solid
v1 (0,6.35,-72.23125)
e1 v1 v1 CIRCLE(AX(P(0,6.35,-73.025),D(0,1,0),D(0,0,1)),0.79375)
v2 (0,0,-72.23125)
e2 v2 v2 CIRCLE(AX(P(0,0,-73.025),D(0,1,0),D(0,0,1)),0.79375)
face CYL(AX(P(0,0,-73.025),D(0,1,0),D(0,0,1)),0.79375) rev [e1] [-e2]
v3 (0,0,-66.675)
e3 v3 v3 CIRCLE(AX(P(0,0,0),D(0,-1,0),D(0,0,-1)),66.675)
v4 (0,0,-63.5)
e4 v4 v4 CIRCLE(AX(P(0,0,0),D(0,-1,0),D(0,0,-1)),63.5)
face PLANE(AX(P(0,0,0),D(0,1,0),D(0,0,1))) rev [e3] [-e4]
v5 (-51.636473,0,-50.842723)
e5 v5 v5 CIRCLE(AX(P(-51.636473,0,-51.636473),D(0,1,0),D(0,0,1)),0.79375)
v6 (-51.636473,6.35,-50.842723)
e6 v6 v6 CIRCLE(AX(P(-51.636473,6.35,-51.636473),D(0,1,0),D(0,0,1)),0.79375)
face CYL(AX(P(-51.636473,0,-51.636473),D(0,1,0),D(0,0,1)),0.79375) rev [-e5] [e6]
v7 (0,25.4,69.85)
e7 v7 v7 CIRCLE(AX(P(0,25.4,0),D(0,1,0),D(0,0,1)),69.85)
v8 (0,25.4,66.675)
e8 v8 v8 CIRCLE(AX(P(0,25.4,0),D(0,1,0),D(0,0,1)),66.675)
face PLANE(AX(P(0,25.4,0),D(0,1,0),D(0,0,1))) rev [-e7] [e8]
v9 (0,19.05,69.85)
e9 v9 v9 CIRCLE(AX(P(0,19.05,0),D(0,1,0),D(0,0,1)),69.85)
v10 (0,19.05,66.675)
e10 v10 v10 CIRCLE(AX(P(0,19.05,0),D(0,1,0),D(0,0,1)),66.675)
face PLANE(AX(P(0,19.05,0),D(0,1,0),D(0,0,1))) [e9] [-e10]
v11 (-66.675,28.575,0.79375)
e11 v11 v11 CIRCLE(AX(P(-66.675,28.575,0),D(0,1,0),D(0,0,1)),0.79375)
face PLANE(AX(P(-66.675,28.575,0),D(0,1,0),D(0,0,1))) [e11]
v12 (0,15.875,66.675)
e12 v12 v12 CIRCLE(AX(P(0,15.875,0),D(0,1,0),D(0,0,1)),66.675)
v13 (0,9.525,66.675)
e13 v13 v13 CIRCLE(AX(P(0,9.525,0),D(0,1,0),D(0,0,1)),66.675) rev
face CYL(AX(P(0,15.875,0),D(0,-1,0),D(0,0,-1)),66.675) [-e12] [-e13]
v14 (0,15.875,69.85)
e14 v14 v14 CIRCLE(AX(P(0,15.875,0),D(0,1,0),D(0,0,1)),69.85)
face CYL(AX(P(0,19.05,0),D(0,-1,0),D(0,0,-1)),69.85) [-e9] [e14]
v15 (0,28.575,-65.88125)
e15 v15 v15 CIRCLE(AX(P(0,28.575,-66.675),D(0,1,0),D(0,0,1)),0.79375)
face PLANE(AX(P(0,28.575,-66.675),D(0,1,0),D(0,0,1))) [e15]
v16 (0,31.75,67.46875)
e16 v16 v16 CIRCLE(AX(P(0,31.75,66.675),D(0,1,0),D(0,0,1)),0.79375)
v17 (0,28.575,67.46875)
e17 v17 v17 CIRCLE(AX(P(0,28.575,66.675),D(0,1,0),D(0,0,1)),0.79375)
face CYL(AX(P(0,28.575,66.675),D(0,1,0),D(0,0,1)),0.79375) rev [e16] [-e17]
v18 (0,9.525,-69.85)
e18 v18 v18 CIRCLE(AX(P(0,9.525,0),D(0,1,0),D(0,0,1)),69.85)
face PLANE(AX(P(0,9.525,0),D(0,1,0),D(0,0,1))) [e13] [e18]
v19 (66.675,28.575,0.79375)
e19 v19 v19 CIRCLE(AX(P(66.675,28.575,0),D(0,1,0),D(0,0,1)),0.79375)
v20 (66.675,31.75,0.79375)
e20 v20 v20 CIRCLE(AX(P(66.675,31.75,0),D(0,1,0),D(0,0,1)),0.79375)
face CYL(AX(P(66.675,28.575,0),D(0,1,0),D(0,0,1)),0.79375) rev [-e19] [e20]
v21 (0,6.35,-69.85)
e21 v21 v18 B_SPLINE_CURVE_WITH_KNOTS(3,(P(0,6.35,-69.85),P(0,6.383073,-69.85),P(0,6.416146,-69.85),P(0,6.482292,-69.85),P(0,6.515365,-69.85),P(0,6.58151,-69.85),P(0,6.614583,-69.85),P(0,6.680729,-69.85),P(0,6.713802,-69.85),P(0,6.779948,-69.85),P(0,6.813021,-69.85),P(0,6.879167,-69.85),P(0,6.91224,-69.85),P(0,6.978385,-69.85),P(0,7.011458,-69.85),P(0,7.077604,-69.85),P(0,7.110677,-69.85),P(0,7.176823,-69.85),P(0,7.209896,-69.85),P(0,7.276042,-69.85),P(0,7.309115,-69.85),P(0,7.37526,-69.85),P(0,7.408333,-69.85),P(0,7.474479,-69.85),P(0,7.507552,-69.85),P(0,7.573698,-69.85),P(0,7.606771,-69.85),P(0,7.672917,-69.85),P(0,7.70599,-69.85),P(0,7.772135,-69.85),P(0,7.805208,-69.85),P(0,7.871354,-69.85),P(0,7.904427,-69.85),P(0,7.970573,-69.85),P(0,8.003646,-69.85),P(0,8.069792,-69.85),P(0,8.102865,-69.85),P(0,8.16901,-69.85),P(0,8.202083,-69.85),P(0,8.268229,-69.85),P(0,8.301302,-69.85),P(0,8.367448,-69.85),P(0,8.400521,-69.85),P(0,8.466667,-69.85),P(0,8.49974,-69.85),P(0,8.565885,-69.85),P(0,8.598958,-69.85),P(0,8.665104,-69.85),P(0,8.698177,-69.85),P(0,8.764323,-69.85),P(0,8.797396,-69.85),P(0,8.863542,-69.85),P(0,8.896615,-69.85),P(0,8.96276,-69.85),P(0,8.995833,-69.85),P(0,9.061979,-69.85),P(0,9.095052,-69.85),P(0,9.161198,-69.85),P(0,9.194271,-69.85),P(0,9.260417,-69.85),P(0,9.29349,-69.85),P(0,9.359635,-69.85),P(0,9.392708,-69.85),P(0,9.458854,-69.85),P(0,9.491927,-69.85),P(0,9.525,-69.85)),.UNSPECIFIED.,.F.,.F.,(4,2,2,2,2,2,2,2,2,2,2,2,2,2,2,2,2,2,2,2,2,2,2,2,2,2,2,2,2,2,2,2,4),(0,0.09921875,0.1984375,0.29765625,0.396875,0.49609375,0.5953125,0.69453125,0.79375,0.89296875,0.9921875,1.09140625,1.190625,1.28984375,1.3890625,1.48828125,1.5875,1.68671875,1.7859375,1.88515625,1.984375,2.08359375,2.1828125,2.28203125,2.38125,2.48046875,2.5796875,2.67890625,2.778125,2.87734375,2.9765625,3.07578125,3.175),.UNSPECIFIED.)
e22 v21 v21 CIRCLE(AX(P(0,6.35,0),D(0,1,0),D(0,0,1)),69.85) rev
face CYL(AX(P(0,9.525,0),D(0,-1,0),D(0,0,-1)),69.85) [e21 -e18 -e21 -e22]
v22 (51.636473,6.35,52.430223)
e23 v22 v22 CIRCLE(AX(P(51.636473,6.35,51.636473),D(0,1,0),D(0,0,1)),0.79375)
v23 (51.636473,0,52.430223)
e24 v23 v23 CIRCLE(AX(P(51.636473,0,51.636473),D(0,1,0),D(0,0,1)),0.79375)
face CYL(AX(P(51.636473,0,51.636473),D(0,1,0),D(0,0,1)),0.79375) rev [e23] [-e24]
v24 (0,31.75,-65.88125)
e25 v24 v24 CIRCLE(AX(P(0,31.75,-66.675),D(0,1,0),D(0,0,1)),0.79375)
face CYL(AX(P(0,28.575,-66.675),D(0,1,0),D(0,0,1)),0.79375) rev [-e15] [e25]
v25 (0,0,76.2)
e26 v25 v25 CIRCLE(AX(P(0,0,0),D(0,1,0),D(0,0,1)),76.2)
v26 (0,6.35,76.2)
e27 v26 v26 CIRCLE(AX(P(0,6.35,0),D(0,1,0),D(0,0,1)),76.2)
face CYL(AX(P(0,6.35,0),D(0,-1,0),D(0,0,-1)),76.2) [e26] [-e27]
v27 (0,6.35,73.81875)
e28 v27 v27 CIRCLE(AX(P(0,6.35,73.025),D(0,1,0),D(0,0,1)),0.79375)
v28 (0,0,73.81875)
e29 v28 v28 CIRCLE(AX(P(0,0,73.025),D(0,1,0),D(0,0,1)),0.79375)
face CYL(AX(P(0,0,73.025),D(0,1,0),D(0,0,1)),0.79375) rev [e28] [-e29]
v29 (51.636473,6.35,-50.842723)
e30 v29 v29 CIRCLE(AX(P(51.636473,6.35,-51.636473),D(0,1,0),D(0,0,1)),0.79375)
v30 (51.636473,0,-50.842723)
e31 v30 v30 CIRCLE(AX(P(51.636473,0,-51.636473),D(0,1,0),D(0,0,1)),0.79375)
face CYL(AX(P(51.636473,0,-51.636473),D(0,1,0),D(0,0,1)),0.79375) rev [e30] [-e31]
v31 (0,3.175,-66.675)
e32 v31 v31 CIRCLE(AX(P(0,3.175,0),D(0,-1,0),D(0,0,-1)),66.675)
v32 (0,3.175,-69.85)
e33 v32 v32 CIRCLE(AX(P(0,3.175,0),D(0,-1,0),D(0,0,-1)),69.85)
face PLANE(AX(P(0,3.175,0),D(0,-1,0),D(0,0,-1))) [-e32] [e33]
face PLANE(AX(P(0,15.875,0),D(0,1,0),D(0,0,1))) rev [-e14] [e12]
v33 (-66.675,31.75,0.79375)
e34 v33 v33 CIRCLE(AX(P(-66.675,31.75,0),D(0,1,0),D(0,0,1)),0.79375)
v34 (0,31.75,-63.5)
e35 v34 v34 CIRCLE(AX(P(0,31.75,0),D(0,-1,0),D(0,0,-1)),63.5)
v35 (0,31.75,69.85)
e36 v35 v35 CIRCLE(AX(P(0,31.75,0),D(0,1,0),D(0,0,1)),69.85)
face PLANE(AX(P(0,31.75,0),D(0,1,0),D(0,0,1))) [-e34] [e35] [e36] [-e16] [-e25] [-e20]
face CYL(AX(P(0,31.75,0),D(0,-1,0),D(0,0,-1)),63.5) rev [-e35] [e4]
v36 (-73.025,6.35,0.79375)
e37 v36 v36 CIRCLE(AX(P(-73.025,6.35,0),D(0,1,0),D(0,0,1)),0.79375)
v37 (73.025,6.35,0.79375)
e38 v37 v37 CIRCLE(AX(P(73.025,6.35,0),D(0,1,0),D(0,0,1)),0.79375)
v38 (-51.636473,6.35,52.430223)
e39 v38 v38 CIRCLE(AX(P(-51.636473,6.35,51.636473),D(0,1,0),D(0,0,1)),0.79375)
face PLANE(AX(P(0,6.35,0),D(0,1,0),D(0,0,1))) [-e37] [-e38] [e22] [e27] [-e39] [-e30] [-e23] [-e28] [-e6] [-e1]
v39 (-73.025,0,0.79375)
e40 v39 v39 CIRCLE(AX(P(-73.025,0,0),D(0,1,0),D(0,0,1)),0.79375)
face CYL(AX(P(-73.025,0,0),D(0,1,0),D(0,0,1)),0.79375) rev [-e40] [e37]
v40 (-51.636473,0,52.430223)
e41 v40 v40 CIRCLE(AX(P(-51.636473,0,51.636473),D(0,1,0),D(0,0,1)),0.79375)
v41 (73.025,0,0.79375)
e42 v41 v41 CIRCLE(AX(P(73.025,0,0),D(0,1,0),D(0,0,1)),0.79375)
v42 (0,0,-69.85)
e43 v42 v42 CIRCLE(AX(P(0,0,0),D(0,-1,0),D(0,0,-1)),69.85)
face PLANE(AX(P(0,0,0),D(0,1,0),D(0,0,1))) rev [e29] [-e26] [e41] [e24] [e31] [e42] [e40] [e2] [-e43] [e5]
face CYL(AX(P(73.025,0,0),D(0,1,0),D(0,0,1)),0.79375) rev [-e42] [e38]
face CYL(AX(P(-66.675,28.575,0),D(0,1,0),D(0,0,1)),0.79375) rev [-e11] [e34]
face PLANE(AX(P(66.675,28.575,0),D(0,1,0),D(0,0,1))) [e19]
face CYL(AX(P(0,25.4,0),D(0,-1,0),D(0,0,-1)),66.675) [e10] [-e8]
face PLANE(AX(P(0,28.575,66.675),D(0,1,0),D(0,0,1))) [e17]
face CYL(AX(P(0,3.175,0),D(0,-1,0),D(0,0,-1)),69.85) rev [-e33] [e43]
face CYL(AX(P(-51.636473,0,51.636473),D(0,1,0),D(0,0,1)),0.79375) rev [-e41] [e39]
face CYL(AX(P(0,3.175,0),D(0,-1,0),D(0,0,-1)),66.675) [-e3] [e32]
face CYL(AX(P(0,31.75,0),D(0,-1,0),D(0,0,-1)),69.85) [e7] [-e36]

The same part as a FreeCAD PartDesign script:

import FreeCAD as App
import Part
import Sketcher

V = App.Vector
Q = App.Units.Quantity

doc = App.newDocument("Part")
body = doc.addObject("PartDesign::Body", "Body")

# Sketch on XZ plane
sketch1 = body.newObject("Sketcher::SketchObject", "Sketch")
sketch1.AttachmentSupport = (doc.getObject("XZ_Plane"), [""])
sketch1.MapMode = "FlatFace"
sketch1.addGeometry(Part.Circle(V(0, 0, 0), V(0, 0, 1), 76.2), False)
sketch1.addConstraint([
    Sketcher.Constraint("Coincident", 0, 3, -1, 1),
    Sketcher.Constraint("Diameter", 0, Q("6 in")),
])
pad1 = body.newObject("PartDesign::Pad", "Pad")
pad1.Profile = sketch1
pad1.Length = Q("0.25 in")
pad1.Reversed = True

# Sketch on XZ plane
sketch2 = body.newObject("Sketcher::SketchObject", "Sketch001")
sketch2.AttachmentSupport = (doc.getObject("XZ_Plane"), [""])
sketch2.MapMode = "FlatFace"
sketch2.addGeometry(Part.Circle(V(0, 0, 0), V(0, 0, 1), 69.85), False)
sketch2.addConstraint([
    Sketcher.Constraint("Coincident", 0, 3, -1, 1),
    Sketcher.Constraint("Diameter", 0, Q("5.5 in")),
])
pad2 = body.newObject("PartDesign::Pad", "Pad001")
pad2.Profile = sketch2
pad2.Length = Q("0.375 in")
pad2.Reversed = True

# Sketch on XZ plane
sketch3 = body.newObject("Sketcher::SketchObject", "Sketch002")
sketch3.AttachmentSupport = (doc.getObject("XZ_Plane"), [""])
sketch3.MapMode = "FlatFace"
sketch3.addGeometry(Part.Circle(V(0, 0, 0), V(0, 0, 1), 66.675), False)
sketch3.addConstraint([
    Sketcher.Constraint("Coincident", 0, 3, -1, 1),
    Sketcher.Constraint("Diameter", 0, Q("5.25 in")),
])
pad3 = body.newObject("PartDesign::Pad", "Pad002")
pad3.Profile = sketch3
pad3.Length = Q("0.625 in")
pad3.Reversed = True

# Sketch on XZ plane
sketch4 = body.newObject("Sketcher::SketchObject", "Sketch003")
sketch4.AttachmentSupport = (doc.getObject("XZ_Plane"), [""])
sketch4.MapMode = "FlatFace"
sketch4.AttachmentOffset = App.Placement(V(0, 0, -0.625 * 25.4), App.Rotation())
sketch4.addGeometry(Part.Circle(V(0, 0, 0), V(0, 0, 1), 69.85), False)
sketch4.addConstraint([
    Sketcher.Constraint("Coincident", 0, 3, -1, 1),
    Sketcher.Constraint("Diameter", 0, Q("5.5 in")),
])
pad4 = body.newObject("PartDesign::Pad", "Pad003")
pad4.Profile = sketch4
pad4.Length = Q("0.125 in")
pad4.Reversed = True

# Sketch on XZ plane
sketch5 = body.newObject("Sketcher::SketchObject", "Sketch004")
sketch5.AttachmentSupport = (doc.getObject("XZ_Plane"), [""])
sketch5.MapMode = "FlatFace"
sketch5.AttachmentOffset = App.Placement(V(0, 0, -0.75 * 25.4), App.Rotation())
sketch5.addGeometry(Part.Circle(V(0, 0, 0), V(0, 0, 1), 66.675), False)
sketch5.addConstraint([
    Sketcher.Constraint("Coincident", 0, 3, -1, 1),
    Sketcher.Constraint("Diameter", 0, Q("5.25 in")),
])
pad5 = body.newObject("PartDesign::Pad", "Pad004")
pad5.Profile = sketch5
pad5.Length = Q("0.25 in")
pad5.Reversed = True

# Sketch on XZ plane
sketch6 = body.newObject("Sketcher::SketchObject", "Sketch005")
sketch6.AttachmentSupport = (doc.getObject("XZ_Plane"), [""])
sketch6.MapMode = "FlatFace"
sketch6.AttachmentOffset = App.Placement(V(0, 0, -1 * 25.4), App.Rotation())
sketch6.addGeometry(Part.Circle(V(0, 0, 0), V(0, 0, 1), 69.85), False)
sketch6.addConstraint([
    Sketcher.Constraint("Coincident", 0, 3, -1, 1),
    Sketcher.Constraint("Diameter", 0, Q("5.5 in")),
])
pad6 = body.newObject("PartDesign::Pad", "Pad005")
pad6.Profile = sketch6
pad6.Length = Q("0.25 in")
pad6.Reversed = True

# Sketch on XZ plane
sketch7 = body.newObject("Sketcher::SketchObject", "Sketch006")
sketch7.AttachmentSupport = (doc.getObject("XZ_Plane"), [""])
sketch7.MapMode = "FlatFace"
sketch7.addGeometry(Part.Circle(V(0, 0, 0), V(0, 0, 1), 63.5), False)
sketch7.addConstraint([
    Sketcher.Constraint("Coincident", 0, 3, -1, 1),
    Sketcher.Constraint("Diameter", 0, Q("5 in")),
])
pocket1 = body.newObject("PartDesign::Pocket", "Pocket")
pocket1.Profile = sketch7
pocket1.Type = "ThroughAll"

# Sketch on XZ plane
sketch8 = body.newObject("Sketcher::SketchObject", "Sketch007")
sketch8.AttachmentSupport = (doc.getObject("XZ_Plane"), [""])
sketch8.MapMode = "FlatFace"
sketch8.AttachmentOffset = App.Placement(V(0, 0, -0.25 * 25.4), App.Rotation())
sketch8.addGeometry([
    Part.Circle(V(0, -73.025, 0), V(0, 0, 1), 0.79375),  # 0
    Part.Circle(V(51.636473, -51.636473, 0), V(0, 0, 1), 0.79375),  # 1
    Part.Circle(V(73.025, 0, 0), V(0, 0, 1), 0.79375),  # 2
    Part.Circle(V(51.636473, 51.636473, 0), V(0, 0, 1), 0.79375),  # 3
    Part.Circle(V(0, 73.025, 0), V(0, 0, 1), 0.79375),  # 4
    Part.Circle(V(-51.636473, 51.636473, 0), V(0, 0, 1), 0.79375),  # 5
    Part.Circle(V(-73.025, 0, 0), V(0, 0, 1), 0.79375),  # 6
    Part.Circle(V(-51.636473, -51.636473, 0), V(0, 0, 1), 0.79375),  # 7
], False)
sketch8.addConstraint([
    Sketcher.Constraint("Equal", 0, 1),
    Sketcher.Constraint("Equal", 1, 2),
    Sketcher.Constraint("Equal", 2, 3),
    Sketcher.Constraint("Equal", 3, 4),
    Sketcher.Constraint("Equal", 4, 5),
    Sketcher.Constraint("Equal", 5, 6),
    Sketcher.Constraint("Equal", 6, 7),
    Sketcher.Constraint("Symmetric", 0, 3, 4, 3, -1, 1),
    Sketcher.Constraint("Symmetric", 1, 3, 5, 3, -1, 1),
    Sketcher.Constraint("Symmetric", 2, 3, 6, 3, -1, 1),
    Sketcher.Constraint("Symmetric", 3, 3, 7, 3, -1, 1),
    Sketcher.Constraint("Symmetric", 3, 3, 5, 3, -2),
    Sketcher.Constraint("PointOnObject", 0, 3, -2),
    Sketcher.Constraint("PointOnObject", 2, 3, -1),
    Sketcher.Constraint("Diameter", 0, Q("0.0625 in")),
    Sketcher.Constraint("DistanceY", 0, 3, 4, 3, Q("5.75 in")),
    Sketcher.Constraint("DistanceX", -1, 1, 2, 3, Q("2.875 in")),
    Sketcher.Constraint("DistanceX", -1, 1, 1, 3, Q("51.636473 mm")),
    Sketcher.Constraint("DistanceY", 1, 3, -1, 1, Q("51.636473 mm")),
])
pocket2 = body.newObject("PartDesign::Pocket", "Pocket001")
pocket2.Profile = sketch8
pocket2.Type = "ThroughAll"
pocket2.Reversed = True

# Sketch on XZ plane
sketch9 = body.newObject("Sketcher::SketchObject", "Sketch008")
sketch9.AttachmentSupport = (doc.getObject("XZ_Plane"), [""])
sketch9.MapMode = "FlatFace"
sketch9.addGeometry([
    Part.Circle(V(0, 0, 0), V(0, 0, 1), 69.85),
    Part.Circle(V(0, 0, 0), V(0, 0, 1), 66.675),
], False)
sketch9.addConstraint([
    Sketcher.Constraint("Coincident", 0, 3, -1, 1),
    Sketcher.Constraint("Coincident", 1, 3, -1, 1),
    Sketcher.Constraint("Diameter", 0, Q("5.5 in")),
    Sketcher.Constraint("Diameter", 1, Q("5.25 in")),
])
pocket3 = body.newObject("PartDesign::Pocket", "Pocket002")
pocket3.Profile = sketch9
pocket3.Length = Q("0.125 in")

# Sketch on XZ plane
sketch10 = body.newObject("Sketcher::SketchObject", "Sketch009")
sketch10.AttachmentSupport = (doc.getObject("XZ_Plane"), [""])
sketch10.MapMode = "FlatFace"
sketch10.AttachmentOffset = App.Placement(V(0, 0, -1.25 * 25.4), App.Rotation())
sketch10.addGeometry([
    Part.Circle(V(0, -66.675, 0), V(0, 0, 1), 0.79375),
    Part.Circle(V(66.675, 0, 0), V(0, 0, 1), 0.79375),
    Part.Circle(V(0, 66.675, 0), V(0, 0, 1), 0.79375),
    Part.Circle(V(-66.675, 0, 0), V(0, 0, 1), 0.79375),
], False)
sketch10.addConstraint([
    Sketcher.Constraint("Equal", 0, 1),
    Sketcher.Constraint("Equal", 1, 2),
    Sketcher.Constraint("Equal", 2, 3),
    Sketcher.Constraint("Symmetric", 0, 3, 2, 3, -1, 1),
    Sketcher.Constraint("Symmetric", 1, 3, 3, 3, -1, 1),
    Sketcher.Constraint("PointOnObject", 0, 3, -2),
    Sketcher.Constraint("PointOnObject", 1, 3, -1),
    Sketcher.Constraint("Diameter", 0, Q("0.0625 in")),
    Sketcher.Constraint("DistanceY", 0, 3, 2, 3, Q("5.25 in")),
    Sketcher.Constraint("DistanceX", 3, 3, 1, 3, Q("5.25 in")),
])
pocket4 = body.newObject("PartDesign::Pocket", "Pocket003")
pocket4.Profile = sketch10
pocket4.Length = Q("0.125 in")
pocket4.Reversed = True

doc.recompute()
